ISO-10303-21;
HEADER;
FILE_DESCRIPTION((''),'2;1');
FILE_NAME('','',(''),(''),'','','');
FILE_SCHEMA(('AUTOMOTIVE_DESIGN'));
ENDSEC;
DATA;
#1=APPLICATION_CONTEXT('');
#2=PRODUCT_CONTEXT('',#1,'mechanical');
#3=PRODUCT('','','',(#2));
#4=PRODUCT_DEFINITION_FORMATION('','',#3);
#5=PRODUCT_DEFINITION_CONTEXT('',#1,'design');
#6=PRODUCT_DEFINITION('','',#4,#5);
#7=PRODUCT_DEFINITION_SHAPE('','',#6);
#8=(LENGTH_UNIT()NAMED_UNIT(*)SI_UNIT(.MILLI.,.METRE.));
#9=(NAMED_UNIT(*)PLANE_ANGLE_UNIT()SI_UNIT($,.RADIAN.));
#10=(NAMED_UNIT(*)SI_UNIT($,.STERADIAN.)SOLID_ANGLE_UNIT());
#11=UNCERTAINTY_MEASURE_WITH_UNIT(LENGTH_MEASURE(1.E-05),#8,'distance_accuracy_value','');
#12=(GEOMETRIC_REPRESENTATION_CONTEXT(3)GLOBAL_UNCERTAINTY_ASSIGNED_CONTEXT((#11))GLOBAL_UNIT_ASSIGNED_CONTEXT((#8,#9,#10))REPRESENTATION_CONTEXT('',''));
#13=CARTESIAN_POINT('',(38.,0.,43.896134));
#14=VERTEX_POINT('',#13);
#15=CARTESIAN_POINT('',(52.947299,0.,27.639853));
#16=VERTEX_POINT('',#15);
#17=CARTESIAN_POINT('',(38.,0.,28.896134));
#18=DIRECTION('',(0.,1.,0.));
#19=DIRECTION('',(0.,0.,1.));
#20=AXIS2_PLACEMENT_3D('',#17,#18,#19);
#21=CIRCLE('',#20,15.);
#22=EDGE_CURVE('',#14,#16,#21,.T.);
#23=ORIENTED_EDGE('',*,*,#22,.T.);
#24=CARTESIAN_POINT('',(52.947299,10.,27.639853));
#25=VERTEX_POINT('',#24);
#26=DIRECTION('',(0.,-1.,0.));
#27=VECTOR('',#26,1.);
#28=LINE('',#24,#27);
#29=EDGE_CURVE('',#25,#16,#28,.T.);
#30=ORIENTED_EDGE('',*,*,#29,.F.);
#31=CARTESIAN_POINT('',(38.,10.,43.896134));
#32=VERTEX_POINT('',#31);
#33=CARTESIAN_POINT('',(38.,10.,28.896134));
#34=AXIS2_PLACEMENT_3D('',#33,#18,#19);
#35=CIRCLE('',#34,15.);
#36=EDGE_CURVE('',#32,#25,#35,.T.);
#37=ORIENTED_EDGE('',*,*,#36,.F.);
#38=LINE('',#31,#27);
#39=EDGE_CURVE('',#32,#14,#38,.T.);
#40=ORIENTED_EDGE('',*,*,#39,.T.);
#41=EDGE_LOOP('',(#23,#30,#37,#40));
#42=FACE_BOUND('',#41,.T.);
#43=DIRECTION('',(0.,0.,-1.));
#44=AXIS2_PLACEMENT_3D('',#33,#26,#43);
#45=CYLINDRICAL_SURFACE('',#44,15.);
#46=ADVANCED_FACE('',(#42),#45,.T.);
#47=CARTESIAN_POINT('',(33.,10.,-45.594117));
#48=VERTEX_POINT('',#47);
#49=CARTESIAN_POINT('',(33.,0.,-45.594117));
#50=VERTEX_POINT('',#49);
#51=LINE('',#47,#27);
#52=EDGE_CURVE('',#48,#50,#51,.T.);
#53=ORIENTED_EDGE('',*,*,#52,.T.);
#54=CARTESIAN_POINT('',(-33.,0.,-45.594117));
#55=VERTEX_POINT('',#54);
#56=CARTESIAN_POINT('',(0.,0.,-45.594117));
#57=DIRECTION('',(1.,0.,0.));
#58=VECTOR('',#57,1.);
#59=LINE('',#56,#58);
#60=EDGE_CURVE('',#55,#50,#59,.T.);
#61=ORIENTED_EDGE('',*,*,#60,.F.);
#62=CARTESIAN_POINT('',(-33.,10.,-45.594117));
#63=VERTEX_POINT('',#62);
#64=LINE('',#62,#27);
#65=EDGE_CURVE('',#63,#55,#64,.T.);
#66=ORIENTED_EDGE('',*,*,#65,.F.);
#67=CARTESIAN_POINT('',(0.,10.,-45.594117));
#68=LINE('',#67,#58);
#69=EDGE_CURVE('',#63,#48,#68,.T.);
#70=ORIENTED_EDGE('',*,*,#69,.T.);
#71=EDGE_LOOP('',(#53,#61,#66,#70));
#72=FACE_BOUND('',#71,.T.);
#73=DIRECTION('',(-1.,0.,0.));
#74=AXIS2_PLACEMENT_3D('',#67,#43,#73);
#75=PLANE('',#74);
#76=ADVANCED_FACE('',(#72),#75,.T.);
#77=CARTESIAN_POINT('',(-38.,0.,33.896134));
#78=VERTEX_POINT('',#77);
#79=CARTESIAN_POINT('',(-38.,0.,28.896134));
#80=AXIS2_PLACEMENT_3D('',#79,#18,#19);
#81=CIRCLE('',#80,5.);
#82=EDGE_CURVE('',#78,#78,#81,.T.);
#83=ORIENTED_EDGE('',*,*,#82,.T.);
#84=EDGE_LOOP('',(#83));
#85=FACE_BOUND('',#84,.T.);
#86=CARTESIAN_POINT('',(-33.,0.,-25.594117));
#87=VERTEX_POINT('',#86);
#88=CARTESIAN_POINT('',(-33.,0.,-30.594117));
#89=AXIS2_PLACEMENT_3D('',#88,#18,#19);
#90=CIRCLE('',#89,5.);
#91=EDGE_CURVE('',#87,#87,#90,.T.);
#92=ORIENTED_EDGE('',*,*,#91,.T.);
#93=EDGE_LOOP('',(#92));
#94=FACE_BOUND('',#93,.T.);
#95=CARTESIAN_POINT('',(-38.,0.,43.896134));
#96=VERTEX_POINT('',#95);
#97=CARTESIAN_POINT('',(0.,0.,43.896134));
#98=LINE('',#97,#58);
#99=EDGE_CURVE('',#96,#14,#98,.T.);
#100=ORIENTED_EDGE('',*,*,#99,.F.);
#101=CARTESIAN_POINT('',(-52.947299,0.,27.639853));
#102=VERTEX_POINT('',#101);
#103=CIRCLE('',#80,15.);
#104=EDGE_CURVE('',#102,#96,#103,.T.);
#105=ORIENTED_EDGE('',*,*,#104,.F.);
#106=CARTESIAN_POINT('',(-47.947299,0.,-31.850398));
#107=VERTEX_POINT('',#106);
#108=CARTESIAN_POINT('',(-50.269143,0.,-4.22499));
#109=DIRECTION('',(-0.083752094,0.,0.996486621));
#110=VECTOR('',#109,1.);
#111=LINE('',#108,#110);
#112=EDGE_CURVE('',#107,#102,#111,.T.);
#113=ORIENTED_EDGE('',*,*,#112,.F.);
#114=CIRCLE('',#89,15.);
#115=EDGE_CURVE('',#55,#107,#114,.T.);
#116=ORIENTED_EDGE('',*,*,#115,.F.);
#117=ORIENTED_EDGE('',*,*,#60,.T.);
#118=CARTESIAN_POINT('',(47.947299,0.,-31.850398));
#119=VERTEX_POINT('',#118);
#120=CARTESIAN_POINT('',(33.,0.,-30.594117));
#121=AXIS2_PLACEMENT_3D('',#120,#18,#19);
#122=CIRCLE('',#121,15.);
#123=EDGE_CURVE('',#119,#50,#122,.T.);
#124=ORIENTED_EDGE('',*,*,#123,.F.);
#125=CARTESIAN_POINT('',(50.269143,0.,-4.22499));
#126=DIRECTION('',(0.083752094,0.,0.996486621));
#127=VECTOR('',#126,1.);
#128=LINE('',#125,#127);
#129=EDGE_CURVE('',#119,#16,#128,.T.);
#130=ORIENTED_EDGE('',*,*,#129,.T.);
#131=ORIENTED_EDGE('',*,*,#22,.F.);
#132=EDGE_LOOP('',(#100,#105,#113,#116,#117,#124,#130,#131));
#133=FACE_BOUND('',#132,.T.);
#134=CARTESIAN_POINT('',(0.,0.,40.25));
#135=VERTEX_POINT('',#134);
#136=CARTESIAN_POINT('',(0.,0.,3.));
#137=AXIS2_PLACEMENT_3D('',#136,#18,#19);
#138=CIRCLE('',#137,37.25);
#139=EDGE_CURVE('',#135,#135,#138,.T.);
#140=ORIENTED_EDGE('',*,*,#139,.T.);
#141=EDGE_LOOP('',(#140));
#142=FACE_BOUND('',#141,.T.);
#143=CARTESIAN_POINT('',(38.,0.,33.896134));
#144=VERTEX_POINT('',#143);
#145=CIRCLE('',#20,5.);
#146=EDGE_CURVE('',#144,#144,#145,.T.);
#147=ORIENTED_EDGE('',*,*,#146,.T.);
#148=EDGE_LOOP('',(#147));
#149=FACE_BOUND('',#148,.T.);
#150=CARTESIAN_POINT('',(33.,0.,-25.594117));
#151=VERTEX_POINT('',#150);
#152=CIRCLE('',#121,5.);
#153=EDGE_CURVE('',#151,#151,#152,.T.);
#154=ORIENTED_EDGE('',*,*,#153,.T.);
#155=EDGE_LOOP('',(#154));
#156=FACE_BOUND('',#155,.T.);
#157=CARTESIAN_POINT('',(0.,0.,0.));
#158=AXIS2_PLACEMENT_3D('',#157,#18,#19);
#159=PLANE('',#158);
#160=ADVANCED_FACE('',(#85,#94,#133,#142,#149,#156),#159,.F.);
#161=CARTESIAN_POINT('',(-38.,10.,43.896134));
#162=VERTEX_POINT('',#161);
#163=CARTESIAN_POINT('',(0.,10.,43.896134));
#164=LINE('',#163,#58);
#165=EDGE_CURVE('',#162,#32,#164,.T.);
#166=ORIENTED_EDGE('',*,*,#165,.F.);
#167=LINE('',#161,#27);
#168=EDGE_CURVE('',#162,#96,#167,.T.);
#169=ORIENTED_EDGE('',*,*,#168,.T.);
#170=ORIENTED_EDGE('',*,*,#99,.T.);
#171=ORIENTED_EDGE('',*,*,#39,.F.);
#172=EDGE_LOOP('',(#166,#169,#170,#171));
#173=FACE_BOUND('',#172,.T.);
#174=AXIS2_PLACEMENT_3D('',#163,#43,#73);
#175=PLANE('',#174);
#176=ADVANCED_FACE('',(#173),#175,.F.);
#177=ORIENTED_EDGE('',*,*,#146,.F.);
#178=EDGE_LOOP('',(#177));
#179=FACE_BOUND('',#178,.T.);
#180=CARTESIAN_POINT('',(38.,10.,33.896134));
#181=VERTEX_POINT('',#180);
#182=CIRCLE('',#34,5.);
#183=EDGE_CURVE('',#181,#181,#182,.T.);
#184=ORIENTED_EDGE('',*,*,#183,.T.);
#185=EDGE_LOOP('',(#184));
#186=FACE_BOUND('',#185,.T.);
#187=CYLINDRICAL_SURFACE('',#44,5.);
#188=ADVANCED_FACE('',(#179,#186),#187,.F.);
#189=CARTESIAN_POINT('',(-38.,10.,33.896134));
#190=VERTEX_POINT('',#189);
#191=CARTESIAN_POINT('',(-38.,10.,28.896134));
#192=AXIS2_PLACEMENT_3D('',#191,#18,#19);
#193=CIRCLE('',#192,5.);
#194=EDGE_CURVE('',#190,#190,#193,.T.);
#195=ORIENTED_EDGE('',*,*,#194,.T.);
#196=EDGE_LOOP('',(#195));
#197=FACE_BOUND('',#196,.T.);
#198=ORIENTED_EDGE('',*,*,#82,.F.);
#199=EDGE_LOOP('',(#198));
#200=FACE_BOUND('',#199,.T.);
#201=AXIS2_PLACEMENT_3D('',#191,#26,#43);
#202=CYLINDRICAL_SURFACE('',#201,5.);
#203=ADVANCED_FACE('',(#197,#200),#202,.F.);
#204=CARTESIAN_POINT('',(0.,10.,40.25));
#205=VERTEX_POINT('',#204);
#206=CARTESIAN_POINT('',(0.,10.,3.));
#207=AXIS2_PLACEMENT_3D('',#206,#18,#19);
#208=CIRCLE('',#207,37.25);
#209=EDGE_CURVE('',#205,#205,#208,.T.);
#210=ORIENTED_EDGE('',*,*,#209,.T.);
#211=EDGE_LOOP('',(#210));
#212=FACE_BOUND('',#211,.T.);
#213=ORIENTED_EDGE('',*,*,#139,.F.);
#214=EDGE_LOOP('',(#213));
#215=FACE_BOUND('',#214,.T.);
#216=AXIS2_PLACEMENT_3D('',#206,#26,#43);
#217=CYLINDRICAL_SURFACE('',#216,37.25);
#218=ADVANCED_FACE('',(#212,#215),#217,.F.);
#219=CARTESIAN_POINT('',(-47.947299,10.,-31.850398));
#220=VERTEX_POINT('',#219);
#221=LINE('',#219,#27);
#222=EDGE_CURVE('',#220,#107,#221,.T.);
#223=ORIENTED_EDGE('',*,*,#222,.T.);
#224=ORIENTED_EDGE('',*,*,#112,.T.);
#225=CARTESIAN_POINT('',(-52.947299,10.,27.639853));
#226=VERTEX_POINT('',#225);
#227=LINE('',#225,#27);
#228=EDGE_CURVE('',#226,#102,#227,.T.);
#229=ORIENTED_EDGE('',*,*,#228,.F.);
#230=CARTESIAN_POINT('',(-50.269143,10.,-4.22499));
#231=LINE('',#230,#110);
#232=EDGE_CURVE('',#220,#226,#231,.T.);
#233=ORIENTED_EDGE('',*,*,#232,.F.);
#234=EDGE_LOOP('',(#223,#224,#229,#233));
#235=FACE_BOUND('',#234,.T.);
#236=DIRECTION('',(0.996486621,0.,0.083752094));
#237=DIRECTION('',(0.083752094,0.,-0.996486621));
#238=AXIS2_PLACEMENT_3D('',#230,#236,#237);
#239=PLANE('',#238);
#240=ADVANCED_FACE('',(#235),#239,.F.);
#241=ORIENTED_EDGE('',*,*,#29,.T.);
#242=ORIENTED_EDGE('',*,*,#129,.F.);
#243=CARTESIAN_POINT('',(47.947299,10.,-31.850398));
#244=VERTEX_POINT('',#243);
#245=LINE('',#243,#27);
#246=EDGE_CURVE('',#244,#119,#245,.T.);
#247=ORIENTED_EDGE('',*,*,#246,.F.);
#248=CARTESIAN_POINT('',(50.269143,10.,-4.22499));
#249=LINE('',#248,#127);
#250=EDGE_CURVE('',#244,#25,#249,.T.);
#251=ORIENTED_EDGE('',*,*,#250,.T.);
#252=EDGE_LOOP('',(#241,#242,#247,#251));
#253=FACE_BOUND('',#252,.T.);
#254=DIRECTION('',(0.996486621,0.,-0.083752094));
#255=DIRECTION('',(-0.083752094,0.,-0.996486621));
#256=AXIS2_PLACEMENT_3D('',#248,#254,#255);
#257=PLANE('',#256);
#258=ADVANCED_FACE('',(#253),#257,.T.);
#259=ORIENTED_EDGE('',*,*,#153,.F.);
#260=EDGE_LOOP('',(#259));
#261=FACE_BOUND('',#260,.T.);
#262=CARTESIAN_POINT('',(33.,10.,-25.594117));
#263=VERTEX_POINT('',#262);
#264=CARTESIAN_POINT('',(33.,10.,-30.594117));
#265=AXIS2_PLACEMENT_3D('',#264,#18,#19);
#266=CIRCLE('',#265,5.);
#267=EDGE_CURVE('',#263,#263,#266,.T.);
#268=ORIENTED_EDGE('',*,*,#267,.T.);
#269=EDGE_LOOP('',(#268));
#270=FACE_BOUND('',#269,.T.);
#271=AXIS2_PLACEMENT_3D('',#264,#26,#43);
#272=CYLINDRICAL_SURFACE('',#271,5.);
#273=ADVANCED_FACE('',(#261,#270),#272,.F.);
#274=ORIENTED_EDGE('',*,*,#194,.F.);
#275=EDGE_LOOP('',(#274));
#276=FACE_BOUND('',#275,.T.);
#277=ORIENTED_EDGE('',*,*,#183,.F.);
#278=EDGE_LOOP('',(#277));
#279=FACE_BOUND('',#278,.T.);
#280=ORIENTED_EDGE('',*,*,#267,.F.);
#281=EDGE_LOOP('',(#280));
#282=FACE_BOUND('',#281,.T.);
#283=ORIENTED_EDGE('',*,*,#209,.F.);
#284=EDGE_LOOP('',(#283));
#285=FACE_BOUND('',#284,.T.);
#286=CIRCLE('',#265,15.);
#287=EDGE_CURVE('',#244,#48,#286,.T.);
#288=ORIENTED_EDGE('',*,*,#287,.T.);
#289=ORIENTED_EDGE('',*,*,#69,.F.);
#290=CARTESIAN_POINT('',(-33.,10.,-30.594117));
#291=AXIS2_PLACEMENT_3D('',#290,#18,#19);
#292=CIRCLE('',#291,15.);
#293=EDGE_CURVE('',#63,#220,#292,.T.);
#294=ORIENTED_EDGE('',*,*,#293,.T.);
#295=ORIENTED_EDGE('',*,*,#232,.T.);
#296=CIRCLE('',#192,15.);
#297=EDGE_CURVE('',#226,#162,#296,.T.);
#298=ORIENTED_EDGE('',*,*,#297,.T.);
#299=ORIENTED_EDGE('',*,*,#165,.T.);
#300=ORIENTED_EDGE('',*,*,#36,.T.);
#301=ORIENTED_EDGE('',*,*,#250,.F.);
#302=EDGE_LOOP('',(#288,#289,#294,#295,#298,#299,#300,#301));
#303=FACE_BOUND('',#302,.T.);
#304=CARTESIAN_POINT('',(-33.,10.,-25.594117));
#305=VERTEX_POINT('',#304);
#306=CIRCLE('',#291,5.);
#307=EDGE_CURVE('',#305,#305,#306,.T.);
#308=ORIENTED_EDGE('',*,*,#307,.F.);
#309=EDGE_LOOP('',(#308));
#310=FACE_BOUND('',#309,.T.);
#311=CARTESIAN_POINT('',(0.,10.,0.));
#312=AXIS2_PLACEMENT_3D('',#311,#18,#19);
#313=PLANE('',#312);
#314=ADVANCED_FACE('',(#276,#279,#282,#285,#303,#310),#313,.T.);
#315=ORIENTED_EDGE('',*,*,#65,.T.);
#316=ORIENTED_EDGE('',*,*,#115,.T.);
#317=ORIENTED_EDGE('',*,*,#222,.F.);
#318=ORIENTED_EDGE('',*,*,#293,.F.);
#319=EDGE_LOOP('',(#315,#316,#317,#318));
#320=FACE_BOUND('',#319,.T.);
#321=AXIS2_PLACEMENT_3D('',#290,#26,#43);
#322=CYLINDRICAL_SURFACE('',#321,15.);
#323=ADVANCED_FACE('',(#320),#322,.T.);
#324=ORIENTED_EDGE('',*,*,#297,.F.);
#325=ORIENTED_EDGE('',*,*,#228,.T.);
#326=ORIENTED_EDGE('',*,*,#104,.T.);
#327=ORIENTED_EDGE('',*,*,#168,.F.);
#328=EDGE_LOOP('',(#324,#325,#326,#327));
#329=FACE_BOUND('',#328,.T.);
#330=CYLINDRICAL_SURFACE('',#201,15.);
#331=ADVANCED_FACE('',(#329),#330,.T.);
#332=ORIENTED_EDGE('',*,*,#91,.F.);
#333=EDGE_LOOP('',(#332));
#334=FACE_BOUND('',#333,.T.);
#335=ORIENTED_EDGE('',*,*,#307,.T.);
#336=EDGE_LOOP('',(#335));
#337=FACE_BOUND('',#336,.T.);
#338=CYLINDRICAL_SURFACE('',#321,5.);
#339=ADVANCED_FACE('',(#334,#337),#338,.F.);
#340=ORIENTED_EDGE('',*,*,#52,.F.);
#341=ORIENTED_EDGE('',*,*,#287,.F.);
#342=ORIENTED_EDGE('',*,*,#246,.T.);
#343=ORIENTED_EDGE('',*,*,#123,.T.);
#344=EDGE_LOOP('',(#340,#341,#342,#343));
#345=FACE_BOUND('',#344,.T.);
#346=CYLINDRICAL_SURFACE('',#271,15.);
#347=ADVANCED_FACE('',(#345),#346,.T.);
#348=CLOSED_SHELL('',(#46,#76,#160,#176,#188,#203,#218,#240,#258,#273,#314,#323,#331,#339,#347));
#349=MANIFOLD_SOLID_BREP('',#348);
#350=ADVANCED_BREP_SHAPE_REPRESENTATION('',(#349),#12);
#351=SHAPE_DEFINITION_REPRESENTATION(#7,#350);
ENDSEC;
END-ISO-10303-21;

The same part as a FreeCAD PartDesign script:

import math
import FreeCAD as App
import Part
import Sketcher
Q = App.Units.Quantity

doc = App.newDocument("Part")
params = doc.addObject("Spreadsheet::Sheet", "Params")
for row, (alias, value) in enumerate([
    ("sketch1_diameter", "10 mm"),
    ("sketch1_radius", "15 mm"),
    ("sketch1_diameter2", "74.5 mm"),
    ("sketch1_width", "76 mm"),
    ("sketch1_width2", "66 mm"),
    ("pad1_length", "10 mm"),
], start=1):
    params.set(f"A{row}", alias)
    params.set(f"B{row}", "=" + value)
    params.setAlias(f"B{row}", alias)

body = doc.addObject("PartDesign::Body", "Body")

# Sketch on XZ plane
sketch1 = body.newObject("Sketcher::SketchObject", "Sketch")
sketch1.AttachmentSupport = (doc.getObject("XZ_Plane"), [""])
sketch1.MapMode = "FlatFace"
sketch1.addGeometry(Part.LineSegment(App.Vector(-47.947299, -31.850398, 0), App.Vector(-52.947299, 27.639853, 0)), False)
sketch1.addGeometry(Part.ArcOfCircle(Part.Circle(App.Vector(-38, 28.896134, 0), App.Vector(0, 0, 1), 15), math.radians(90), math.radians(184.804269)), False)
sketch1.addGeometry(Part.LineSegment(App.Vector(-38, 43.896134, 0), App.Vector(38, 43.896134, 0)), False)
sketch1.addGeometry(Part.ArcOfCircle(Part.Circle(App.Vector(38, 28.896134, 0), App.Vector(0, 0, 1), 15), math.radians(-4.804269), math.radians(90)), False)
sketch1.addGeometry(Part.LineSegment(App.Vector(52.947299, 27.639853, 0), App.Vector(47.947299, -31.850398, 0)), False)
sketch1.addGeometry(Part.ArcOfCircle(Part.Circle(App.Vector(33, -30.594117, 0), App.Vector(0, 0, 1), 15), math.radians(-90), math.radians(-4.804269)), False)
sketch1.addGeometry(Part.LineSegment(App.Vector(33, -45.594117, 0), App.Vector(-33, -45.594117, 0)), False)
sketch1.addGeometry(Part.ArcOfCircle(Part.Circle(App.Vector(-33, -30.594117, 0), App.Vector(0, 0, 1), 15), math.radians(-175.195731), math.radians(-90)), False)
sketch1.addGeometry(Part.Circle(App.Vector(-38, 28.896134, 0), App.Vector(0, 0, 1), 5), False)
sketch1.addGeometry(Part.Circle(App.Vector(38, 28.896134, 0), App.Vector(0, 0, 1), 5), False)
sketch1.addGeometry(Part.Circle(App.Vector(0, 3, 0), App.Vector(0, 0, 1), 37.25), False)
sketch1.addGeometry(Part.Circle(App.Vector(-33, -30.594117, 0), App.Vector(0, 0, 1), 5), False)
sketch1.addGeometry(Part.Circle(App.Vector(33, -30.594117, 0), App.Vector(0, 0, 1), 5), False)
sketch1.addConstraint(Sketcher.Constraint("Tangent", 0, 2, 1, 2))
sketch1.addConstraint(Sketcher.Constraint("Tangent", 1, 1, 2, 1))
sketch1.addConstraint(Sketcher.Constraint("Tangent", 2, 2, 3, 2))
sketch1.addConstraint(Sketcher.Constraint("Tangent", 3, 1, 4, 1))
sketch1.addConstraint(Sketcher.Constraint("Tangent", 4, 2, 5, 2))
sketch1.addConstraint(Sketcher.Constraint("Tangent", 5, 1, 6, 1))
sketch1.addConstraint(Sketcher.Constraint("Tangent", 6, 2, 7, 2))
sketch1.addConstraint(Sketcher.Constraint("Tangent", 7, 1, 0, 1))
sketch1.addConstraint(Sketcher.Constraint("Horizontal", 2))
sketch1.addConstraint(Sketcher.Constraint("Horizontal", 6))
sketch1.addConstraint(Sketcher.Constraint("Coincident", 8, 3, 1, 3))
sketch1.addConstraint(Sketcher.Constraint("Coincident", 9, 3, 3, 3))
sketch1.addConstraint(Sketcher.Constraint("Coincident", 11, 3, 7, 3))
sketch1.addConstraint(Sketcher.Constraint("Coincident", 12, 3, 5, 3))
sketch1.addConstraint(Sketcher.Constraint("Equal", 1, 3))
sketch1.addConstraint(Sketcher.Constraint("Equal", 3, 5))
sketch1.addConstraint(Sketcher.Constraint("Equal", 5, 7))
sketch1.addConstraint(Sketcher.Constraint("Equal", 8, 9))
sketch1.addConstraint(Sketcher.Constraint("Equal", 9, 11))
sketch1.addConstraint(Sketcher.Constraint("Equal", 11, 12))
sketch1.addConstraint(Sketcher.Constraint("Symmetric", 0, 2, 3, 1, -2))
sketch1.addConstraint(Sketcher.Constraint("PointOnObject", 10, 3, -2))
sketch1.addConstraint(Sketcher.Constraint("Diameter", 8, Q("10 mm")))
sketch1.addConstraint(Sketcher.Constraint("Radius", 1, Q("15 mm")))
sketch1.addConstraint(Sketcher.Constraint("Diameter", 10, Q("74.5 mm")))
sketch1.addConstraint(Sketcher.Constraint("DistanceX", 2, 1, 2, 2, Q("76 mm")))
sketch1.addConstraint(Sketcher.Constraint("DistanceX", 6, 2, 6, 1, Q("66 mm")))
sketch1.addConstraint(Sketcher.Constraint("DistanceY", -1, 1, 10, 3, Q("3 mm")))
sketch1.addConstraint(Sketcher.Constraint("Distance", 0, Q("59.7 mm")))
sketch1.addConstraint(Sketcher.Constraint("DistanceY", 4, 2, -1, 1, Q("31.850398 mm")))
sketch1.setExpression("Constraints[22]", "Params.sketch1_diameter")
sketch1.setExpression("Constraints[23]", "Params.sketch1_radius")
sketch1.setExpression("Constraints[24]", "Params.sketch1_diameter2")
sketch1.setExpression("Constraints[25]", "Params.sketch1_width")
sketch1.setExpression("Constraints[26]", "Params.sketch1_width2")
pad1 = body.newObject("PartDesign::Pad", "Pad")
pad1.Profile = sketch1
pad1.setExpression("Length", "Params.pad1_length")
pad1.Reversed = True

doc.recompute()
